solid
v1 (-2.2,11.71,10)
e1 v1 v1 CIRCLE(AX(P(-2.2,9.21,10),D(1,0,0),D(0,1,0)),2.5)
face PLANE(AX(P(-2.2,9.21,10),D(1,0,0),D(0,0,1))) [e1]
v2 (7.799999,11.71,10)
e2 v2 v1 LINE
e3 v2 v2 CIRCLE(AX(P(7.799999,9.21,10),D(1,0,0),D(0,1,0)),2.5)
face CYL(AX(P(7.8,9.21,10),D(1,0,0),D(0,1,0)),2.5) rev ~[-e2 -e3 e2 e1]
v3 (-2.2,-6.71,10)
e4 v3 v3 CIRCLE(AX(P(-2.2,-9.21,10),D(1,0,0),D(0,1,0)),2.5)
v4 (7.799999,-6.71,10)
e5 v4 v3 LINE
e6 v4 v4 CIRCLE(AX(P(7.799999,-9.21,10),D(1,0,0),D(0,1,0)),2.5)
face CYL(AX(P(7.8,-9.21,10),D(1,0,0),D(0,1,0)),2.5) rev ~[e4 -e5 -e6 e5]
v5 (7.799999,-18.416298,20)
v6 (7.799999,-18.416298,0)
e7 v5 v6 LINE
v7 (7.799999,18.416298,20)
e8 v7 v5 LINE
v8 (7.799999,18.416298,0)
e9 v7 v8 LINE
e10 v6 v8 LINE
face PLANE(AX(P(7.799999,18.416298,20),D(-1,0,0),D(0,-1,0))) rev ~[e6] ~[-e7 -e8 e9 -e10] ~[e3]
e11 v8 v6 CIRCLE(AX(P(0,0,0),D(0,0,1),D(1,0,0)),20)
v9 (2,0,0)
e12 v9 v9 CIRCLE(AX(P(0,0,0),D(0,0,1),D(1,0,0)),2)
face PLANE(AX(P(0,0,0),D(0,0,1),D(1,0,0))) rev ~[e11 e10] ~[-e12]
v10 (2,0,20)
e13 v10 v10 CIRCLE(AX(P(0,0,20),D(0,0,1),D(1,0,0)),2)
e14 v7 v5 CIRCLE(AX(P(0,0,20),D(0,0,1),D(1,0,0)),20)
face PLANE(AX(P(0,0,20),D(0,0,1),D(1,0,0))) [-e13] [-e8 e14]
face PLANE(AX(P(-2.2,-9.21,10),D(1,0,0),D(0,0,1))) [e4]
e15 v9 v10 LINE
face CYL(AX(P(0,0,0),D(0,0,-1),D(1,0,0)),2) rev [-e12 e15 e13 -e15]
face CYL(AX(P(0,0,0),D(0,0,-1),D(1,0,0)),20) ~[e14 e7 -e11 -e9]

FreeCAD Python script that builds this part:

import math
import FreeCAD as App
import Part
import Sketcher

V = App.Vector
Q = App.Units.Quantity

doc = App.newDocument("Part")
body = doc.addObject("PartDesign::Body", "Body")

sketch1 = body.newObject("Sketcher::SketchObject", "Sketch")
sketch1.AttachmentSupport = (doc.getObject("XY_Plane"), [""])
sketch1.MapMode = "FlatFace"
sketch1.addGeometry([
    Part.Circle(V(0, 0, 0), V(0, 0, 1), 20),
    Part.Circle(V(0, 0, 0), V(0, 0, 1), 2),
], False)
sketch1.addConstraint([
    Sketcher.Constraint("Coincident", 0, 3, -1, 1),
    Sketcher.Constraint("Coincident", 1, 3, -1, 1),
    Sketcher.Constraint("Diameter", 0, Q("40 mm")),
    Sketcher.Constraint("Diameter", 1, Q("4 mm")),
])
pad1 = body.newObject("PartDesign::Pad", "Pad")
pad1.Profile = sketch1
pad1.Length = 20

sketch2 = body.newObject("Sketcher::SketchObject", "Sketch001")
sketch2.AttachmentSupport = (doc.getObject("XY_Plane"), [""])
sketch2.MapMode = "FlatFace"
sketch2.AttachmentOffset = App.Placement(V(0, 0, 20), App.Rotation())
sketch2.addGeometry([
    Part.ArcOfCircle(Part.Circle(V(0, 0, 0), V(0, 0, 1), 20), math.radians(-67), math.radians(67)),
    Part.LineSegment(V(8, 18, 0), V(8, -18, 0)),
], False)
sketch2.addConstraint([
    Sketcher.Constraint("Coincident", 0, 1, 1, 2),
    Sketcher.Constraint("Coincident", 1, 1, 0, 2),
    Sketcher.Constraint("Vertical", 1),
    Sketcher.Constraint("Coincident", 0, 3, -1, 1),
    Sketcher.Constraint("Radius", 0, Q("20 mm")),
    Sketcher.Constraint("DistanceX", -1, 1, 0, 1, Q("7.8 mm")),
])
pocket1 = body.newObject("PartDesign::Pocket", "Pocket")
pocket1.Profile = sketch2
pocket1.Type = "UpToFirst"

sketch3 = body.newObject("Sketcher::SketchObject", "Sketch002")
sketch3.AttachmentSupport = (doc.getObject("YZ_Plane"), [""])
sketch3.MapMode = "FlatFace"
sketch3.AttachmentOffset = App.Placement(V(0, 0, 7.8), App.Rotation())
sketch3.addGeometry([
    Part.Circle(V(-9.2, 10, 0), V(0, 0, 1), 2.5),
    Part.Circle(V(9.2, 10, 0), V(0, 0, 1), 2.5),
], False)
sketch3.addConstraint([
    Sketcher.Constraint("Equal", 0, 1),
    Sketcher.Constraint("Symmetric", 0, 3, 1, 3, -2),
    Sketcher.Constraint("Diameter", 0, Q("5 mm")),
    Sketcher.Constraint("DistanceY", -1, 1, 0, 3, Q("10 mm")),
    Sketcher.Constraint("DistanceX", 0, 3, -1, 1, Q("9.21 mm")),
])
pocket2 = body.newObject("PartDesign::Pocket", "Pocket001")
pocket2.Profile = sketch3
pocket2.Length = 10

doc.recompute()
